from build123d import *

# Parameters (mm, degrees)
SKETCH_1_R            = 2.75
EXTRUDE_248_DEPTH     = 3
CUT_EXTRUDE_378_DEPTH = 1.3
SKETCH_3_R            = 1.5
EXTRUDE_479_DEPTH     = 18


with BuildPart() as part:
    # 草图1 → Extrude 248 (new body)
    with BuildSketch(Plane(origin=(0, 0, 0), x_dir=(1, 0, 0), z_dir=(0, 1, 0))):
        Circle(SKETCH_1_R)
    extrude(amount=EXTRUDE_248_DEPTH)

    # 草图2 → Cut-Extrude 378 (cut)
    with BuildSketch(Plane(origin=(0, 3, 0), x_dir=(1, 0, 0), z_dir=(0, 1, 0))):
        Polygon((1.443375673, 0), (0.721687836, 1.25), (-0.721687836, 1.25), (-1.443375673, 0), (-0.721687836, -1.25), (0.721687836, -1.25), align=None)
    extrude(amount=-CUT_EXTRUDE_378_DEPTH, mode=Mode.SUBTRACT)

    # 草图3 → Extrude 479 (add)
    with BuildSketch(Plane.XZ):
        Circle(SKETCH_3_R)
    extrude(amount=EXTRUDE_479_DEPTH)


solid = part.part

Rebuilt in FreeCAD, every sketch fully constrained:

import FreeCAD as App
import Part
import Sketcher
from FreeCAD import Vector
Q = App.Units.Quantity


def add_polygon(sketch, points):
    """Adds a closed chain of lines whose ends are joined by coincident constraints."""
    first, n = sketch.GeometryCount, len(points)
    for a, b in zip(points, points[1:] + points[:1]):
        sketch.addGeometry(Part.LineSegment(App.Vector(*a, 0), App.Vector(*b, 0)), False)
    for i in range(n):
        sketch.addConstraint(Sketcher.Constraint("Coincident", first + i, 2, first + (i + 1) % n, 1))

doc = App.newDocument("Part")
body = doc.addObject("PartDesign::Body", "Body")

sketch1 = body.newObject("Sketcher::SketchObject", "Sketch")
sketch1.AttachmentSupport = (doc.getObject("XZ_Plane"), [""])
sketch1.MapMode = "FlatFace"
sketch1.addGeometry(Part.Circle(Vector(0, 0, 0), Vector(0, 0, 1), 2.8), False)
sketch1.addConstraint(Sketcher.Constraint("Coincident", 0, 3, -1, 1))
sketch1.addConstraint(Sketcher.Constraint("Diameter", 0, 5.5))
pad1 = body.newObject("PartDesign::Pad", "Pad")
pad1.Profile = sketch1
pad1.Length = 3
pad1.Reversed = True

sketch2 = body.newObject("Sketcher::SketchObject", "Sketch001")
sketch2.AttachmentSupport = (doc.getObject("XZ_Plane"), [""])
sketch2.MapMode = "FlatFace"
sketch2.AttachmentOffset = App.Placement(Vector(0, 0, -3), App.Rotation())
add_polygon(sketch2, [(1.4, 0), (0.7, -1.2), (-0.7, -1.2), (-1.4, 0), (-0.7, 1.2), (0.7, 1.2)])
sketch2.addConstraint(Sketcher.Constraint("Horizontal", 1))
sketch2.addConstraint(Sketcher.Constraint("Horizontal", 4))
sketch2.addConstraint(Sketcher.Constraint("Symmetric", 0, 2, 3, 2, -1, 1))
sketch2.addConstraint(Sketcher.Constraint("Symmetric", 2, 2, 5, 2, -1, 1))
sketch2.addConstraint(Sketcher.Constraint("PointOnObject", 2, 2, -1))
sketch2.addConstraint(Sketcher.Constraint("Parallel", 2, 5))
sketch2.addConstraint(Sketcher.Constraint("Vertical", 1, 2, 3, 2))
sketch2.addConstraint(Sketcher.Constraint("Angle", 0, Q("-120 deg")))
sketch2.addConstraint(Sketcher.Constraint("DistanceY", 1, 2, 3, 2, 2.5))
sketch2.addConstraint(Sketcher.Constraint("DistanceX", 1, 2, 1, 1, 1.443376))
pocket1 = body.newObject("PartDesign::Pocket", "Pocket")
pocket1.Profile = sketch2
pocket1.Length = 1.3
pocket1.Reversed = True

sketch3 = body.newObject("Sketcher::SketchObject", "Sketch002")
sketch3.AttachmentSupport = (doc.getObject("XZ_Plane"), [""])
sketch3.MapMode = "FlatFace"
sketch3.addGeometry(Part.Circle(Vector(0, 0, 0), Vector(0, 0, 1), 1.5), False)
sketch3.addConstraint(Sketcher.Constraint("Coincident", 0, 3, -1, 1))
sketch3.addConstraint(Sketcher.Constraint("Diameter", 0, 3.0))
pad2 = body.newObject("PartDesign::Pad", "Pad001")
pad2.Profile = sketch3
pad2.Length = 18

doc.recompute()
